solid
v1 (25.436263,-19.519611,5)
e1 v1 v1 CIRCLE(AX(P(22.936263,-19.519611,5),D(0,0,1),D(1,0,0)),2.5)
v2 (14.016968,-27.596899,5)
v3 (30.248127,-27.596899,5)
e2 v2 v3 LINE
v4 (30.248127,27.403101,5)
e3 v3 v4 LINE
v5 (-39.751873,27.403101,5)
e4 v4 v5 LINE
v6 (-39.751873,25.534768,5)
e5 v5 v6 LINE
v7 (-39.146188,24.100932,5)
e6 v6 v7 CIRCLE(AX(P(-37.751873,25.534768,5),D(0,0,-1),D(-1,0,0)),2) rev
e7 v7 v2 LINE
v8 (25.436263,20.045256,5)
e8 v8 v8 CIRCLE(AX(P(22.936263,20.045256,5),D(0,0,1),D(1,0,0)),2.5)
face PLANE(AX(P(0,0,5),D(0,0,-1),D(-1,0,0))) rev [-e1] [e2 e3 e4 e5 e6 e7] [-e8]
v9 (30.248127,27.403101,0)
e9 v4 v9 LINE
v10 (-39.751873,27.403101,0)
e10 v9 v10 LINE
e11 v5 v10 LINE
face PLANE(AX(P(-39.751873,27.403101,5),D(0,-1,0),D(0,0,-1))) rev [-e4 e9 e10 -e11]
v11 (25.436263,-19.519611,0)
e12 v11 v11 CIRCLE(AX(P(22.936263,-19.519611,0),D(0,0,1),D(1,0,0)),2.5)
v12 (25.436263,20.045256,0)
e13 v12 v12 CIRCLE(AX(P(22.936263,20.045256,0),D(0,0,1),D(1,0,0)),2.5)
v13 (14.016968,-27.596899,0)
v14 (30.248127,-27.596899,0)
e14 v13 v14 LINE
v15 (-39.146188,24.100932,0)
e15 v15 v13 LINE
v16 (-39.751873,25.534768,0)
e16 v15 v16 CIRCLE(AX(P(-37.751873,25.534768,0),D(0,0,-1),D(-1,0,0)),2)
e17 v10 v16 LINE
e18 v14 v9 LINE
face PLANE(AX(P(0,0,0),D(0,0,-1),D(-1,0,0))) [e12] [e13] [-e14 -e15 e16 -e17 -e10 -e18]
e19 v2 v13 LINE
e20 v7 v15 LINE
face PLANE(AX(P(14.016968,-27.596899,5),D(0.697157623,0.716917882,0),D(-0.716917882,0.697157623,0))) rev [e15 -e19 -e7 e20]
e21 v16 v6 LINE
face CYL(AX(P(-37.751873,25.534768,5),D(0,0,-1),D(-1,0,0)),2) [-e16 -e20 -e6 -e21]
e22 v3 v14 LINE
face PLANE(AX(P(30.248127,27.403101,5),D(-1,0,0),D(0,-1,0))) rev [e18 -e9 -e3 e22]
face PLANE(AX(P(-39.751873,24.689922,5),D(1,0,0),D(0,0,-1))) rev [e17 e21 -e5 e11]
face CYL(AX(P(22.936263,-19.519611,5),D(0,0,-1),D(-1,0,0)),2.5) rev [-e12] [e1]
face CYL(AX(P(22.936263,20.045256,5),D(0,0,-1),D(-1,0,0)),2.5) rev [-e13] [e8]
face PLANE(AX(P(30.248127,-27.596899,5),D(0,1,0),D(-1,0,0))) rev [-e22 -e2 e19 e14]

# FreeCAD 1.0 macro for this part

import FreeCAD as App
import Part
import Sketcher
from FreeCAD import Vector


def edges_at(feature, points):
    """Names of the edges that pass closest to the given points."""
    edges = feature.Shape.Edges
    near = lambda p: min(range(len(edges)), key=lambda i: edges[i].distToShape(Part.Vertex(*p))[0])
    return sorted({f"Edge{near(p) + 1}" for p in points})


def add_polygon(sketch, points):
    """Adds a closed chain of lines whose ends are joined by coincident constraints."""
    first, n = sketch.GeometryCount, len(points)
    for a, b in zip(points, points[1:] + points[:1]):
        sketch.addGeometry(Part.LineSegment(App.Vector(*a, 0), App.Vector(*b, 0)), False)
    for i in range(n):
        sketch.addConstraint(Sketcher.Constraint("Coincident", first + i, 2, first + (i + 1) % n, 1))

doc = App.newDocument("Part")
params = doc.addObject("Spreadsheet::Sheet", "Params")
for row, (alias, value) in enumerate([
    ("sketch1_diameter", "5 mm"),
    ("sketch1_width", "70 mm"),
    ("sketch1_height", "55 mm"),
    ("sketch1_length", "75 mm"),
    ("pad1_length", "5 mm"),
    ("fillet_radius", "2 mm"),
], start=1):
    params.set(f"A{row}", alias)
    params.set(f"B{row}", "=" + value)
    params.setAlias(f"B{row}", alias)

body = doc.addObject("PartDesign::Body", "Body")

sketch1 = body.newObject("Sketcher::SketchObject", "Sketch")
sketch1.AttachmentSupport = (doc.getObject("XY_Plane"), [""])
sketch1.MapMode = "FlatFace"
add_polygon(sketch1, [(30.2, 27.4), (-39.8, 27.4), (-39.8, 24.7), (14, -27.6), (30.2, -27.6)])
sketch1.addGeometry(Part.Circle(Vector(22.9, -19.5, 0), Vector(0, 0, 1), 2.5), False)
sketch1.addGeometry(Part.Circle(Vector(22.9, 20, 0), Vector(0, 0, 1), 2.5), False)
sketch1.addConstraint(Sketcher.Constraint("Horizontal", 0))
sketch1.addConstraint(Sketcher.Constraint("Vertical", 1))
sketch1.addConstraint(Sketcher.Constraint("Horizontal", 3))
sketch1.addConstraint(Sketcher.Constraint("Vertical", 4))
sketch1.addConstraint(Sketcher.Constraint("Equal", 5, 6))
sketch1.addConstraint(Sketcher.Constraint("Vertical", 5, 3, 6, 3))
sketch1.addConstraint(Sketcher.Constraint("Diameter", 5, 5.0))
sketch1.addConstraint(Sketcher.Constraint("DistanceX", 0, 2, 0, 1, 70.0))
sketch1.addConstraint(Sketcher.Constraint("DistanceY", 4, 1, 4, 2, 55.0))
sketch1.addConstraint(Sketcher.Constraint("Distance", 2, 75.0))
sketch1.addConstraint(Sketcher.Constraint("DistanceX", 3, 1, 3, 2, 16.231159))
sketch1.addConstraint(Sketcher.Constraint("DistanceY", -1, 1, 0, 2, 27.403101))
sketch1.addConstraint(Sketcher.Constraint("DistanceY", 5, 3, -1, 1, 19.519611))
sketch1.addConstraint(Sketcher.Constraint("DistanceX", -1, 1, 5, 3, 22.936263))
sketch1.addConstraint(Sketcher.Constraint("DistanceY", -1, 1, 6, 3, 20.045256))
sketch1.addConstraint(Sketcher.Constraint("DistanceX", 0, 2, -1, 1, 39.751873))
sketch1.setExpression("Constraints[11]", "Params.sketch1_diameter")
sketch1.setExpression("Constraints[12]", "Params.sketch1_width")
sketch1.setExpression("Constraints[13]", "Params.sketch1_height")
sketch1.setExpression("Constraints[14]", "Params.sketch1_length")
pad1 = body.newObject("PartDesign::Pad", "Pad")
pad1.Profile = sketch1
pad1.setExpression("Length", "Params.pad1_length")
doc.recompute()

fillet = body.newObject("PartDesign::Fillet", "Fillet")
fillet.Base = (pad1, edges_at(pad1, [(-39.752, 24.69, 2.5)]))
fillet.setExpression("Radius", "Params.fillet_radius")

doc.recompute()
